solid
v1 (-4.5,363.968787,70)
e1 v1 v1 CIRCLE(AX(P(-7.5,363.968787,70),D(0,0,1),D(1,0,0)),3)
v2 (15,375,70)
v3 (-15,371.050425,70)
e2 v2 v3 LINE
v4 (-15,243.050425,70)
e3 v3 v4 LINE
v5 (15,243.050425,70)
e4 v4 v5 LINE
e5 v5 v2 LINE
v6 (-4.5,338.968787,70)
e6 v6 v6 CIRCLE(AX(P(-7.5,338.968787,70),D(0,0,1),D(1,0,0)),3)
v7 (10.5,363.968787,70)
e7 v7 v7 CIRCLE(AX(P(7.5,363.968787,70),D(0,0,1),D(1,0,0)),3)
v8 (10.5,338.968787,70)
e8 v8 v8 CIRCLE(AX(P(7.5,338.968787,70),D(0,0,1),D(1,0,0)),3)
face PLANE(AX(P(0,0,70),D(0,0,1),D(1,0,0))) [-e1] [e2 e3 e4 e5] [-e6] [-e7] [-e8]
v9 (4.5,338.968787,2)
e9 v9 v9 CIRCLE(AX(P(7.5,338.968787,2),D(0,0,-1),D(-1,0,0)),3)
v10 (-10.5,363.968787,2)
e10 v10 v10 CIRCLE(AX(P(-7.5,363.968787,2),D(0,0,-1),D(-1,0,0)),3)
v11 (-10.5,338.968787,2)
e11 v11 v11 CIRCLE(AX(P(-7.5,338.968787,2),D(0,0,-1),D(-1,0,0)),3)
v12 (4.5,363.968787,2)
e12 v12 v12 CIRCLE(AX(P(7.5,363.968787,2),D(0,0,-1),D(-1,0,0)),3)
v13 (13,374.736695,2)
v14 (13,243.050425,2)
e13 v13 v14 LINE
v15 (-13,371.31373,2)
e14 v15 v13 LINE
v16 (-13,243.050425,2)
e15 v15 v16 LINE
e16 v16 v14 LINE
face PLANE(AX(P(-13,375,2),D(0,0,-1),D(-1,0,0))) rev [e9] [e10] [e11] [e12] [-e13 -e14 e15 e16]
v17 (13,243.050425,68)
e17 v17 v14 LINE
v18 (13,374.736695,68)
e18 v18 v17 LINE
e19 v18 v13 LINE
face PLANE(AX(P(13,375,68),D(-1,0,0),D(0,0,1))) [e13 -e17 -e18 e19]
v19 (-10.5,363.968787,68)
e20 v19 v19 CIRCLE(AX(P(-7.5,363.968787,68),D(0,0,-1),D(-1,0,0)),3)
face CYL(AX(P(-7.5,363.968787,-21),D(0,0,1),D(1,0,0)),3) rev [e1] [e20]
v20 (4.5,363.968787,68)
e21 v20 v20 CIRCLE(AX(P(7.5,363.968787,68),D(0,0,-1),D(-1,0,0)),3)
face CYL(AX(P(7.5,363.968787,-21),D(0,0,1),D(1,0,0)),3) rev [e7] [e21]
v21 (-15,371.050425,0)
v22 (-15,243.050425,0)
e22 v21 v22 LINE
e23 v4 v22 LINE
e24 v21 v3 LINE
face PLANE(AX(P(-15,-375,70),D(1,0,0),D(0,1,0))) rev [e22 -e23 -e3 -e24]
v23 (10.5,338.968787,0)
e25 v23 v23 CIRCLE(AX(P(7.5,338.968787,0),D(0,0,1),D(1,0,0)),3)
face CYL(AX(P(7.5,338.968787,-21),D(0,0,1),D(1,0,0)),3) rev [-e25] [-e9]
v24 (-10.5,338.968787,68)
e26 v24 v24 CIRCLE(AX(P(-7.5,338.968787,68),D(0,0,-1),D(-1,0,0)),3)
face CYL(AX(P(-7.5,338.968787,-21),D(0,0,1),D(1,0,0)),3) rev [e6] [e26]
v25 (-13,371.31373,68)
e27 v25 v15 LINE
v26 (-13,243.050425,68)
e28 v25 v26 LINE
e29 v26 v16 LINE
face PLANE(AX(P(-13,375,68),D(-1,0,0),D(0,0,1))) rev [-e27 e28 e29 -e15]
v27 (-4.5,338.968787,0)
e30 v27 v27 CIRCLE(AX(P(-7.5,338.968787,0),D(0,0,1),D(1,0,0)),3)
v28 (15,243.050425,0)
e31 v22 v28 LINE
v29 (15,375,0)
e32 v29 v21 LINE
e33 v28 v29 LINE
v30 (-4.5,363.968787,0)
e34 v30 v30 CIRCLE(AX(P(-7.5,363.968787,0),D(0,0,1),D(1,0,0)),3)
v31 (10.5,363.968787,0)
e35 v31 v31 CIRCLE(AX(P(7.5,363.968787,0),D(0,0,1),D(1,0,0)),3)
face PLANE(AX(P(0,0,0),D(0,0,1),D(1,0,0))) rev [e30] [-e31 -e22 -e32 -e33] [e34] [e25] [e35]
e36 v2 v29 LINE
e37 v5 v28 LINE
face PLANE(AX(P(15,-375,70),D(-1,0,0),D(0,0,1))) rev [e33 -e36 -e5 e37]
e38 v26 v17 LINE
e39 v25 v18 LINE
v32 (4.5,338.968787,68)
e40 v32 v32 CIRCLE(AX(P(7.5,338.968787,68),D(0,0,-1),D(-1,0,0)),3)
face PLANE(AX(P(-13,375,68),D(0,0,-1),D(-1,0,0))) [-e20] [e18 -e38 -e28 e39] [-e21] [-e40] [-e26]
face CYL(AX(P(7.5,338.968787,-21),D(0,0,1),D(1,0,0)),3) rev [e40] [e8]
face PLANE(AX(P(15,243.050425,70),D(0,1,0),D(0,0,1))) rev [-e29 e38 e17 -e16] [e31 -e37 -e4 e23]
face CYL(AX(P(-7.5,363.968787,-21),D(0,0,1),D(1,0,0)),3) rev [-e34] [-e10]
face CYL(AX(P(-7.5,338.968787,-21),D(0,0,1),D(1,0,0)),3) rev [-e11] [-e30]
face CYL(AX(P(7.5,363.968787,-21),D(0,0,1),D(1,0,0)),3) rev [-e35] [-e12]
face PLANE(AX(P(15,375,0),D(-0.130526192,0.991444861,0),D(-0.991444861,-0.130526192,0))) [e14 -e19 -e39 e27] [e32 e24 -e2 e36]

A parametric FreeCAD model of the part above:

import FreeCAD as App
import Part
import Sketcher

V = App.Vector
Q = App.Units.Quantity


def add_polygon(sketch, points):
    """Adds a closed chain of lines whose ends are joined by coincident constraints."""
    first, n = sketch.GeometryCount, len(points)
    for a, b in zip(points, points[1:] + points[:1]):
        sketch.addGeometry(Part.LineSegment(App.Vector(*a, 0), App.Vector(*b, 0)), False)
    for i in range(n):
        sketch.addConstraint(Sketcher.Constraint("Coincident", first + i, 2, first + (i + 1) % n, 1))

doc = App.newDocument("Part")
body = doc.addObject("PartDesign::Body", "Body")

sketch1 = body.newObject("Sketcher::SketchObject", "Sketch")
sketch1.AttachmentSupport = (doc.getObject("XY_Plane"), [""])
sketch1.MapMode = "FlatFace"
add_polygon(sketch1, [(-15, 375), (-15, -375), (15, -375), (15, 375)])
sketch1.addGeometry(Part.Circle(V(-7.5, -337.9, 0), V(0, 0, 1), 2), False)
sketch1.addGeometry(Part.Circle(V(-7.5, -312.9, 0), V(0, 0, 1), 2), False)
sketch1.addGeometry(Part.Circle(V(7.5, -337.9, 0), V(0, 0, 1), 2), False)
sketch1.addGeometry(Part.Circle(V(7.5, -312.9, 0), V(0, 0, 1), 2), False)
sketch1.addGeometry(Part.Circle(V(-7.5, 339, 0), V(0, 0, 1), 2), False)
sketch1.addGeometry(Part.Circle(V(-7.5, 364, 0), V(0, 0, 1), 2), False)
sketch1.addGeometry(Part.Circle(V(7.5, 339, 0), V(0, 0, 1), 2), False)
sketch1.addGeometry(Part.Circle(V(7.5, 364, 0), V(0, 0, 1), 2), False)
sketch1.addConstraint([
    Sketcher.Constraint("Vertical", 0),
    Sketcher.Constraint("Horizontal", 1),
    Sketcher.Constraint("Vertical", 2),
    Sketcher.Constraint("Horizontal", 3),
    Sketcher.Constraint("Equal", 4, 5),
    Sketcher.Constraint("Equal", 5, 6),
    Sketcher.Constraint("Equal", 6, 7),
    Sketcher.Constraint("Equal", 7, 8),
    Sketcher.Constraint("Equal", 8, 9),
    Sketcher.Constraint("Equal", 9, 10),
    Sketcher.Constraint("Equal", 10, 11),
    Sketcher.Constraint("Symmetric", 0, 2, 2, 2, -1, 1),
    Sketcher.Constraint("Symmetric", 4, 3, 6, 3, -2),
    Sketcher.Constraint("Symmetric", 5, 3, 7, 3, -2),
    Sketcher.Constraint("Symmetric", 8, 3, 10, 3, -2),
    Sketcher.Constraint("Symmetric", 9, 3, 11, 3, -2),
    Sketcher.Constraint("Vertical", 4, 3, 5, 3),
    Sketcher.Constraint("Vertical", 5, 3, 8, 3),
    Sketcher.Constraint("Vertical", 8, 3, 9, 3),
    Sketcher.Constraint("Diameter", 4, Q("4 mm")),
    Sketcher.Constraint("DistanceX", 1, 1, 1, 2, Q("30 mm")),
    Sketcher.Constraint("DistanceY", 0, 2, 0, 1, Q("750 mm")),
    Sketcher.Constraint("DistanceY", 4, 3, 5, 3, Q("25 mm")),
    Sketcher.Constraint("DistanceX", 4, 3, 6, 3, Q("15 mm")),
    Sketcher.Constraint("DistanceY", 8, 3, 9, 3, Q("25 mm")),
    Sketcher.Constraint("DistanceY", 4, 3, -1, 1, Q("337.867937 mm")),
    Sketcher.Constraint("DistanceY", -1, 1, 8, 3, Q("338.968787 mm")),
])
pad1 = body.newObject("PartDesign::Pad", "Pad")
pad1.Profile = sketch1
pad1.Length = 70

sketch2 = body.newObject("Sketcher::SketchObject", "Sketch001")
sketch2.AttachmentSupport = (doc.getObject("XZ_Plane"), [""])
sketch2.MapMode = "FlatFace"
sketch2.AttachmentOffset = App.Placement(V(0, 0, 375), App.Rotation())
add_polygon(sketch2, [(-13, 68), (-13, 2), (13, 2), (13, 68)])
sketch2.addConstraint([
    Sketcher.Constraint("Vertical", 0),
    Sketcher.Constraint("Horizontal", 1),
    Sketcher.Constraint("Vertical", 2),
    Sketcher.Constraint("Horizontal", 3),
    Sketcher.Constraint("DistanceX", 1, 1, 1, 2, Q("26 mm")),
    Sketcher.Constraint("DistanceY", 0, 2, 0, 1, Q("66 mm")),
    Sketcher.Constraint("DistanceX", 0, 2, -1, 1, Q("13 mm")),
    Sketcher.Constraint("DistanceY", -1, 1, 0, 2, Q("2 mm")),
])
pocket1 = body.newObject("PartDesign::Pocket", "Pocket")
pocket1.Profile = sketch2
pocket1.Type = "ThroughAll"

sketch3 = body.newObject("Sketcher::SketchObject", "Sketch002")
sketch3.AttachmentSupport = (doc.getObject("XY_Plane"), [""])
sketch3.MapMode = "FlatFace"
sketch3.AttachmentOffset = App.Placement(V(0, 0, 70), App.Rotation())
add_polygon(sketch3, [(15, -375), (15, -347.1), (-15, -343.2), (-15, -375)])
add_polygon(sketch3, [(15, 375), (15, 377), (-15, 377), (-15, 371.1)])
sketch3.addConstraint([
    Sketcher.Constraint("Vertical", 0),
    Sketcher.Constraint("Vertical", 2),
    Sketcher.Constraint("Horizontal", 3),
    Sketcher.Constraint("Vertical", 4),
    Sketcher.Constraint("Horizontal", 5),
    Sketcher.Constraint("Vertical", 6),
    Sketcher.Constraint("Symmetric", 2, 2, 7, 2, -1, 1),
    Sketcher.Constraint("Vertical", 3, 2, 4, 2),
    Sketcher.Constraint("Vertical", 2, 2, 5, 2),
    Sketcher.Constraint("Equal", 1, 7),
    Sketcher.Constraint("DistanceX", 3, 1, 3, 2, Q("30 mm")),
    Sketcher.Constraint("DistanceY", 0, 1, 0, 2, Q("27.9 mm")),
    Sketcher.Constraint("DistanceY", 2, 2, -1, 1, Q("375 mm")),
    Sketcher.Constraint("Angle", 1, Q("172.5 deg")),
    Sketcher.Constraint("DistanceY", 4, 1, 4, 2, Q("2.04083 mm")),
])
pocket2 = body.newObject("PartDesign::Pocket", "Pocket001")
pocket2.Profile = sketch3
pocket2.Type = "ThroughAll"

sketch4 = body.newObject("Sketcher::SketchObject", "Sketch003")
sketch4.AttachmentSupport = (doc.getObject("XY_Plane"), [""])
sketch4.MapMode = "FlatFace"
add_polygon(sketch4, [(15, 243), (15, -680), (-15, -680), (-15, 243)])
sketch4.addConstraint([
    Sketcher.Constraint("Vertical", 0),
    Sketcher.Constraint("Horizontal", 1),
    Sketcher.Constraint("Vertical", 2),
    Sketcher.Constraint("Horizontal", 3),
    Sketcher.Constraint("DistanceX", 1, 2, 1, 1, Q("30 mm")),
    Sketcher.Constraint("DistanceX", -1, 1, 0, 2, Q("15 mm")),
    Sketcher.Constraint("DistanceY", 0, 2, 0, 1, Q("922.920511 mm")),
    Sketcher.Constraint("DistanceY", 0, 2, -1, 1, Q("679.870086 mm")),
])
pocket3 = body.newObject("PartDesign::Pocket", "Pocket002")
pocket3.Profile = sketch4
pocket3.Type = "ThroughAll"
pocket3.Reversed = True

sketch5 = body.newObject("Sketcher::SketchObject", "Sketch004")
sketch5.AttachmentSupport = (doc.getObject("XY_Plane"), [""])
sketch5.MapMode = "FlatFace"
sketch5.AttachmentOffset = App.Placement(V(0, 0, 70), App.Rotation())
sketch5.addGeometry([
    Part.Circle(V(-7.5, 364, 0), V(0, 0, 1), 3),
    Part.Circle(V(7.5, 364, 0), V(0, 0, 1), 3),
    Part.Circle(V(7.5, 339, 0), V(0, 0, 1), 3),
    Part.Circle(V(-7.5, 339, 0), V(0, 0, 1), 3),
], False)
sketch5.addConstraint([
    Sketcher.Constraint("Equal", 0, 1),
    Sketcher.Constraint("Equal", 1, 2),
    Sketcher.Constraint("Equal", 2, 3),
    Sketcher.Constraint("Symmetric", 0, 3, 1, 3, -2),
    Sketcher.Constraint("Symmetric", 2, 3, 3, 3, -2),
    Sketcher.Constraint("Vertical", 1, 3, 2, 3),
    Sketcher.Constraint("Diameter", 0, Q("6 mm")),
    Sketcher.Constraint("DistanceX", 0, 3, 1, 3, Q("15 mm")),
    Sketcher.Constraint("DistanceY", 2, 3, 1, 3, Q("25 mm")),
    Sketcher.Constraint("DistanceY", -1, 1, 0, 3, Q("363.968787 mm")),
])
pocket4 = body.newObject("PartDesign::Pocket", "Pocket003")
pocket4.Profile = sketch5
pocket4.Length = 91

doc.recompute()
